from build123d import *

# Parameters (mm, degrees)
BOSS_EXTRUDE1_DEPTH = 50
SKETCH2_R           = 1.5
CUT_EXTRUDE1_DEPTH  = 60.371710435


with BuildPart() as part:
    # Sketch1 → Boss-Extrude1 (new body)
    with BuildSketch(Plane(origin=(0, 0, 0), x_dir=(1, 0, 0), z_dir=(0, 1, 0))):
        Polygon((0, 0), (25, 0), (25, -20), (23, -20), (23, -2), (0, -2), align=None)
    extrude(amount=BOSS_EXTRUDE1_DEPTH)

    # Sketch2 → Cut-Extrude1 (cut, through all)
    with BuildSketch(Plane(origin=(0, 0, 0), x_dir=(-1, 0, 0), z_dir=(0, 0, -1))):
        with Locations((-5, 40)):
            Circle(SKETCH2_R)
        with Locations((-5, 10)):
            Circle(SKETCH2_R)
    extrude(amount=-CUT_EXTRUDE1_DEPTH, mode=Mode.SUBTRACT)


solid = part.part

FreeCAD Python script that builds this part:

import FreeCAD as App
import Part
import Sketcher

V = App.Vector
Q = App.Units.Quantity

doc = App.newDocument("Part")
params = doc.addObject("Spreadsheet::Sheet", "Params")
for row, (alias, value) in enumerate([
    ("sketch1_width", "25 mm"),
    ("sketch1_width2", "23 mm"),
    ("sketch1_height", "18 mm"),
    ("pad1_length", "50 mm"),
    ("sketch2_diameter", "3 mm"),
], start=1):
    params.set(f"A{row}", alias)
    params.set(f"B{row}", "=" + value)
    params.setAlias(f"B{row}", alias)

body = doc.addObject("PartDesign::Body", "Body")

# Sketch on XZ plane
sketch1 = body.newObject("Sketcher::SketchObject", "Sketch")
sketch1.AttachmentSupport = (doc.getObject("XZ_Plane"), [""])
sketch1.MapMode = "FlatFace"
sketch1.addGeometry([
    Part.LineSegment(V(25, 0, 0), V(0, 0, 0)),  # 0
    Part.LineSegment(V(0, 0, 0), V(0, 2, 0)),  # 1
    Part.LineSegment(V(0, 2, 0), V(23, 2, 0)),  # 2
    Part.LineSegment(V(23, 2, 0), V(23, 20, 0)),  # 3
    Part.LineSegment(V(23, 20, 0), V(25, 20, 0)),  # 4
    Part.LineSegment(V(25, 20, 0), V(25, 0, 0)),  # 5
], False)
sketch1.addConstraint([
    Sketcher.Constraint("Coincident", 0, 2, 1, 1),
    Sketcher.Constraint("Coincident", 1, 2, 2, 1),
    Sketcher.Constraint("Coincident", 2, 2, 3, 1),
    Sketcher.Constraint("Coincident", 3, 2, 4, 1),
    Sketcher.Constraint("Coincident", 4, 2, 5, 1),
    Sketcher.Constraint("Coincident", 5, 2, 0, 1),
    Sketcher.Constraint("Horizontal", 0),
    Sketcher.Constraint("Vertical", 1),
    Sketcher.Constraint("Horizontal", 2),
    Sketcher.Constraint("Vertical", 3),
    Sketcher.Constraint("Horizontal", 4),
    Sketcher.Constraint("Vertical", 5),
    Sketcher.Constraint("Coincident", 0, 2, -1, 1),
    Sketcher.Constraint("Equal", 4, 1),
    Sketcher.Constraint("DistanceX", 0, 2, 0, 1, Q("25 mm")),
    Sketcher.Constraint("DistanceX", 2, 1, 2, 2, Q("23 mm")),
    Sketcher.Constraint("DistanceY", 3, 1, 3, 2, Q("18 mm")),
])
sketch1.setExpression("Constraints[14]", "Params.sketch1_width")
sketch1.setExpression("Constraints[15]", "Params.sketch1_width2")
sketch1.setExpression("Constraints[16]", "Params.sketch1_height")
pad1 = body.newObject("PartDesign::Pad", "Pad")
pad1.Profile = sketch1
pad1.setExpression("Length", "Params.pad1_length")
pad1.Reversed = True

# Sketch on XY plane
sketch2 = body.newObject("Sketcher::SketchObject", "Sketch001")
sketch2.AttachmentSupport = (doc.getObject("XY_Plane"), [""])
sketch2.MapMode = "FlatFace"
sketch2.addGeometry([
    Part.Circle(V(5, 40, 0), V(0, 0, 1), 1.5),
    Part.Circle(V(5, 10, 0), V(0, 0, 1), 1.5),
], False)
sketch2.addConstraint([
    Sketcher.Constraint("Equal", 0, 1),
    Sketcher.Constraint("Vertical", 0, 3, 1, 3),
    Sketcher.Constraint("Diameter", 0, Q("3 mm")),
    Sketcher.Constraint("DistanceX", -1, 1, 0, 3, Q("5 mm")),
    Sketcher.Constraint("DistanceY", -1, 1, 0, 3, Q("40 mm")),
    Sketcher.Constraint("DistanceY", -1, 1, 1, 3, Q("10 mm")),
])
sketch2.setExpression("Constraints[2]", "Params.sketch2_diameter")
pocket1 = body.newObject("PartDesign::Pocket", "Pocket")
pocket1.Profile = sketch2
pocket1.Type = "ThroughAll"
pocket1.Reversed = True

doc.recompute()
